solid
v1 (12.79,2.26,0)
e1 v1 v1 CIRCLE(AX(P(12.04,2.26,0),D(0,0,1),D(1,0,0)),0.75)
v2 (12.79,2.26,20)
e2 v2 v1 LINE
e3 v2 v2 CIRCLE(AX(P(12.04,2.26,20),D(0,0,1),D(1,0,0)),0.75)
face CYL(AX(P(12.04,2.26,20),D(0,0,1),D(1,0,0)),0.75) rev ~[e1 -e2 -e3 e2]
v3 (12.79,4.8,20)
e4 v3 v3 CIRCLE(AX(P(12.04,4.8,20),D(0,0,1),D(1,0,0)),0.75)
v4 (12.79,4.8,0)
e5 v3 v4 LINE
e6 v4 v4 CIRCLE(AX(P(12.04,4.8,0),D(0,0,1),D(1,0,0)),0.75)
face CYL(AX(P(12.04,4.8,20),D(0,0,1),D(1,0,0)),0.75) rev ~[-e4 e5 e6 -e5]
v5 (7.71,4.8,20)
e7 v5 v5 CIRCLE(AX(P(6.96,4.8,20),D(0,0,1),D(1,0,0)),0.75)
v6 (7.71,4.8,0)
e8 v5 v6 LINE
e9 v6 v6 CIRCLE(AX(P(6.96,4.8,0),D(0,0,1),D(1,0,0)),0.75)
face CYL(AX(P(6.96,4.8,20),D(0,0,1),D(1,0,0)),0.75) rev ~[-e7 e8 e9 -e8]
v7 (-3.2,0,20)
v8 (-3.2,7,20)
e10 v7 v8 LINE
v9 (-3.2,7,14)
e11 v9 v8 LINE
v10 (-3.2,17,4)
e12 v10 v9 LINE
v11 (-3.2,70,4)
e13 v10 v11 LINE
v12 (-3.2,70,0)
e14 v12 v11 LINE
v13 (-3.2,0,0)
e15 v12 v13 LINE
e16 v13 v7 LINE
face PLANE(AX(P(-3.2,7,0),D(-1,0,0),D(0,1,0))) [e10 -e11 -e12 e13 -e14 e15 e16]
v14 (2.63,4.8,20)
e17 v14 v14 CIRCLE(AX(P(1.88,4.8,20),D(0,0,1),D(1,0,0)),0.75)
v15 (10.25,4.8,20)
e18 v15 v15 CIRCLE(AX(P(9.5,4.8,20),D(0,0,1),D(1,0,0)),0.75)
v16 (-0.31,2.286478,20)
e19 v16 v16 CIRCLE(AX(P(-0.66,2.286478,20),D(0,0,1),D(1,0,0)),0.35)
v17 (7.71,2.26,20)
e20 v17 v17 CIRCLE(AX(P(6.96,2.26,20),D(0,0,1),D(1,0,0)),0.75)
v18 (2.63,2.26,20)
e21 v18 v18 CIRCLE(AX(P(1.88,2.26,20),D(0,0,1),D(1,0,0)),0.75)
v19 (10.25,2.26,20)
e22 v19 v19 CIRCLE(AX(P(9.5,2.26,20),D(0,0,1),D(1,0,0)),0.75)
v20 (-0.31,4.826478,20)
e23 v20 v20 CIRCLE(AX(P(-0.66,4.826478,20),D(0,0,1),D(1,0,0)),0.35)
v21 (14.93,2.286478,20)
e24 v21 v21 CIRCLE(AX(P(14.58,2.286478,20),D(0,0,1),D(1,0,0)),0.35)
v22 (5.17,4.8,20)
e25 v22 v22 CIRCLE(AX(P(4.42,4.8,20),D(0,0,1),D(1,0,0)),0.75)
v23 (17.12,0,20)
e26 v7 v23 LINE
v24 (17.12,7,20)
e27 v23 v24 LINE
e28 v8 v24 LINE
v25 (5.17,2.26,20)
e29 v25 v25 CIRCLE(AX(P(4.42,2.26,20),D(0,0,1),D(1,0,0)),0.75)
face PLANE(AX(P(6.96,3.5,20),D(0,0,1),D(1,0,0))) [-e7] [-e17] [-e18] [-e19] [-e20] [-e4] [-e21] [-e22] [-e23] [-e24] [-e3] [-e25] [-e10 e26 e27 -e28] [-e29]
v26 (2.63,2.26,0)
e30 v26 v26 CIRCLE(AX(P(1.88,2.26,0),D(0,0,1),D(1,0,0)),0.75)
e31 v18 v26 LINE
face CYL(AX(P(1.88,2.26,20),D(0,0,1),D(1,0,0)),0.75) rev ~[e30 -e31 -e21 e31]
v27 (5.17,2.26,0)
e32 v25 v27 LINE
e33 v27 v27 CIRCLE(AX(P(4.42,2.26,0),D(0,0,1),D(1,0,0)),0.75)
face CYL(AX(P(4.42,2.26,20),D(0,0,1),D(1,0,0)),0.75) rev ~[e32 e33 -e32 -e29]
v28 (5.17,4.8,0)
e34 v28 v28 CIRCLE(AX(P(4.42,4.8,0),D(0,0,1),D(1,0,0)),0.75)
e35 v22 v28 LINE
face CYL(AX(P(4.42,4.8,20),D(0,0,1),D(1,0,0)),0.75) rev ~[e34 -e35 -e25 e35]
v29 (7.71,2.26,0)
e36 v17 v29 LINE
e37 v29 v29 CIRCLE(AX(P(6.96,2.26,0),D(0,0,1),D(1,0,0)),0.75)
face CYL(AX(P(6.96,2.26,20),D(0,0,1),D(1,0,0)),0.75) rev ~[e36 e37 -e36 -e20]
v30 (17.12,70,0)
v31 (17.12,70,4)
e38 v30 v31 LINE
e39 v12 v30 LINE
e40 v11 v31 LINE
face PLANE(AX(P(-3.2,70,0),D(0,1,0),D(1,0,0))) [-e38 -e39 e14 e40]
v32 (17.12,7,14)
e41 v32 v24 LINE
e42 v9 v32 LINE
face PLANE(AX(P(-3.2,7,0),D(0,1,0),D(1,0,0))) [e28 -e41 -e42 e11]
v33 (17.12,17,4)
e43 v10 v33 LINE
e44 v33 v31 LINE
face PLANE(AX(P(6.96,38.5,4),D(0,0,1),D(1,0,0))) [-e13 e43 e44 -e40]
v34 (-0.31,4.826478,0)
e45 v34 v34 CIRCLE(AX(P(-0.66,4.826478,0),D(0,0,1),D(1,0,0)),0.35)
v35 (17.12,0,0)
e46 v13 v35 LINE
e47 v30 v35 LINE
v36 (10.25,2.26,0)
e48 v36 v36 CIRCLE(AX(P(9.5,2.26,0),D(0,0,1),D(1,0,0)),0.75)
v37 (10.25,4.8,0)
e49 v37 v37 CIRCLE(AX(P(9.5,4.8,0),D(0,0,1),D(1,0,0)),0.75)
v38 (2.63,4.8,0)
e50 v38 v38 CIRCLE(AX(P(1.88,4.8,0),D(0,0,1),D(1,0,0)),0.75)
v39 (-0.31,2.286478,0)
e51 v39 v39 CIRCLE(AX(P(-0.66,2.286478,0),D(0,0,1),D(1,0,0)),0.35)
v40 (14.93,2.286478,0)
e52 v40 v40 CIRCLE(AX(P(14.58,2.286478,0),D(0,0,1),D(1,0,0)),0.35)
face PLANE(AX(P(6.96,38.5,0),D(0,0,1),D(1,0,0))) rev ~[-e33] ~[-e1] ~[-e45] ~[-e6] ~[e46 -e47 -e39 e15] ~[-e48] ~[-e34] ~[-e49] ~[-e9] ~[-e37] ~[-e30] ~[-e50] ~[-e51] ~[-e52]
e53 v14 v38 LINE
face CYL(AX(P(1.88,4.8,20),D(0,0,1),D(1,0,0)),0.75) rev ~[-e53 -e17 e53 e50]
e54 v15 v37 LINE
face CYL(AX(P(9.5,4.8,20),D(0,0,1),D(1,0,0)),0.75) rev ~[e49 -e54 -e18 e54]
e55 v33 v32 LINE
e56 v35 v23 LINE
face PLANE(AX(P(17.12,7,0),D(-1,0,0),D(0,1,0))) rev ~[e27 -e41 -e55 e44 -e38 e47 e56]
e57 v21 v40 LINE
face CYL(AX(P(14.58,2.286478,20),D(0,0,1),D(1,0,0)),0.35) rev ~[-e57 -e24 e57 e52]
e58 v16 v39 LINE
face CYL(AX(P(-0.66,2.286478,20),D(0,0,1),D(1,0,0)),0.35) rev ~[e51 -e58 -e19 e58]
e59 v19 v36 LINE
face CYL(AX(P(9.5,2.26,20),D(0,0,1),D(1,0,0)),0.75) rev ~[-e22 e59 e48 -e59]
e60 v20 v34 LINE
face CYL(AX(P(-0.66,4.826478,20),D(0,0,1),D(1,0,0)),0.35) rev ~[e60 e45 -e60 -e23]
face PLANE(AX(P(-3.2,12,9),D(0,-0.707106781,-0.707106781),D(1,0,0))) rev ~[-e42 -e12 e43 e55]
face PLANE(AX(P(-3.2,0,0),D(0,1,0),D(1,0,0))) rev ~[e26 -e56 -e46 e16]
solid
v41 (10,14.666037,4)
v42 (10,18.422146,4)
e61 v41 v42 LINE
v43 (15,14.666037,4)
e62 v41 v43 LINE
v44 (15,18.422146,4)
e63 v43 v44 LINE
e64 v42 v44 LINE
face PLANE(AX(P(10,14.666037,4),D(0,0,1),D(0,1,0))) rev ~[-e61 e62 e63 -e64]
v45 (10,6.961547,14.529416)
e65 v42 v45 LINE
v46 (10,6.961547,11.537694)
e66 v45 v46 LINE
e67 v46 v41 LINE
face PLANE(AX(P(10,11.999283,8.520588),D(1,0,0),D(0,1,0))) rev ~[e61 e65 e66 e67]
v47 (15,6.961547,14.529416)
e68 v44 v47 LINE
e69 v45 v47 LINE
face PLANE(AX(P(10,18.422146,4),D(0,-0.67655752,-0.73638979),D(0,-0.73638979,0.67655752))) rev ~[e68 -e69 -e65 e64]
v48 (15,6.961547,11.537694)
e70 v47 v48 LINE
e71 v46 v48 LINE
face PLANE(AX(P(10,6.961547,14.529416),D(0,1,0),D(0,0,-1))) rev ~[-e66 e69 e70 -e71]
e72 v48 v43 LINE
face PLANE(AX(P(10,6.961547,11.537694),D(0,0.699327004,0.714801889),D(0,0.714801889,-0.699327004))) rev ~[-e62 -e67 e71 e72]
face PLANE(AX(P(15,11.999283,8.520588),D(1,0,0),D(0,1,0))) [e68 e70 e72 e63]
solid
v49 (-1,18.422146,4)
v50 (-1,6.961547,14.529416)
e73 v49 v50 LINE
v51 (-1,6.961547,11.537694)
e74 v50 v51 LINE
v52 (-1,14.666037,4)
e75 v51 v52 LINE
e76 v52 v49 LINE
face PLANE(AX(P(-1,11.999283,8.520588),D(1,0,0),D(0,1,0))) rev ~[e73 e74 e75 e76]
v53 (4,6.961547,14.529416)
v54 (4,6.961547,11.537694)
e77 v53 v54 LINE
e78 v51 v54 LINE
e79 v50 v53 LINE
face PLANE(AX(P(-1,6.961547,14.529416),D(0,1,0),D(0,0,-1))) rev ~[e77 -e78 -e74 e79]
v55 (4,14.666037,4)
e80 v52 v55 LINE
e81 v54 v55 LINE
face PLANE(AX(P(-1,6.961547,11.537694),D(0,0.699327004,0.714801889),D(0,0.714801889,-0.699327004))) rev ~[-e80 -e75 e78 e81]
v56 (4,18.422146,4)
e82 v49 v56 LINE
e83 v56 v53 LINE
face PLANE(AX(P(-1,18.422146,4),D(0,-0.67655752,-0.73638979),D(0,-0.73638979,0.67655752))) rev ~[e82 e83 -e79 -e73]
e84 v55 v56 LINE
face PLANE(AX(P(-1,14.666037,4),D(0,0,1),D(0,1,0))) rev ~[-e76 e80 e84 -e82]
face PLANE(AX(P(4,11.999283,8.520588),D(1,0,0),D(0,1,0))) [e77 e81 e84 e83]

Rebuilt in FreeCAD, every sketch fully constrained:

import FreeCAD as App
import Part
import Sketcher
Q = App.Units.Quantity


def edges_at(feature, points):
    """Names of the edges that pass closest to the given points."""
    edges = feature.Shape.Edges
    near = lambda p: min(range(len(edges)), key=lambda i: edges[i].distToShape(Part.Vertex(*p))[0])
    return sorted({f"Edge{near(p) + 1}" for p in points})


def add_polygon(sketch, points):
    """Adds a closed chain of lines whose ends are joined by coincident constraints."""
    first, n = sketch.GeometryCount, len(points)
    for a, b in zip(points, points[1:] + points[:1]):
        sketch.addGeometry(Part.LineSegment(App.Vector(*a, 0), App.Vector(*b, 0)), False)
    for i in range(n):
        sketch.addConstraint(Sketcher.Constraint("Coincident", first + i, 2, first + (i + 1) % n, 1))

doc = App.newDocument("Part")
body = doc.addObject("PartDesign::Body", "Body")

sketch1 = body.newObject("Sketcher::SketchObject", "Sketch")
sketch1.AttachmentSupport = (doc.getObject("YZ_Plane"), [""])
sketch1.MapMode = "FlatFace"
sketch1.AttachmentOffset = App.Placement(App.Vector(0, 0, -1), App.Rotation())
add_polygon(sketch1, [(7, 14.5), (7, 11.5), (14.7, 4), (18.4, 4)])
sketch1.addConstraint([
    Sketcher.Constraint("Vertical", 0),
    Sketcher.Constraint("Horizontal", 2),
    Sketcher.Constraint("DistanceY", -1, 1, 1, 2, Q("4 mm")),
    Sketcher.Constraint("DistanceX", 2, 1, 2, 2, Q("3.756109 mm")),
    Sketcher.Constraint("DistanceY", 0, 2, 0, 1, Q("2.991722 mm")),
    Sketcher.Constraint("DistanceX", 0, 2, 2, 2, Q("11.460599 mm")),
    Sketcher.Constraint("Distance", 1, Q("10.778497 mm")),
    Sketcher.Constraint("DistanceX", -1, 1, 0, 2, Q("6.961547 mm")),
])
pad1 = body.newObject("PartDesign::Pad", "Pad")
pad1.Profile = sketch1
pad1.Length = 5
body2 = doc.addObject("PartDesign::Body", "Body001")

sketch2 = body2.newObject("Sketcher::SketchObject", "Sketch001")
sketch2.AttachmentSupport = (doc.getObject("YZ_Plane001"), [""])
sketch2.MapMode = "FlatFace"
sketch2.AttachmentOffset = App.Placement(App.Vector(0, 0, 10), App.Rotation())
add_polygon(sketch2, [(7, 14.5), (7, 11.5), (14.7, 4), (18.4, 4)])
sketch2.addConstraint([
    Sketcher.Constraint("Vertical", 0),
    Sketcher.Constraint("Horizontal", 2),
    Sketcher.Constraint("DistanceY", -1, 1, 1, 2, Q("4 mm")),
    Sketcher.Constraint("DistanceX", 2, 1, 2, 2, Q("3.756109 mm")),
    Sketcher.Constraint("DistanceY", 0, 2, 0, 1, Q("2.991722 mm")),
    Sketcher.Constraint("DistanceX", 0, 2, 2, 2, Q("11.460599 mm")),
    Sketcher.Constraint("Distance", 1, Q("10.778497 mm")),
    Sketcher.Constraint("DistanceX", -1, 1, 0, 2, Q("6.961547 mm")),
])
pad2 = body2.newObject("PartDesign::Pad", "Pad001")
pad2.Profile = sketch2
pad2.Length = 5
body3 = doc.addObject("PartDesign::Body", "Body002")

sketch3 = body3.newObject("Sketcher::SketchObject", "Sketch002")
sketch3.AttachmentSupport = (doc.getObject("XY_Plane002"), [""])
sketch3.MapMode = "FlatFace"
add_polygon(sketch3, [(-3, 70), (-3, 7), (17, 7), (17, 70)])
sketch3.addConstraint([
    Sketcher.Constraint("Vertical", 0),
    Sketcher.Constraint("Horizontal", 1),
    Sketcher.Constraint("Vertical", 2),
    Sketcher.Constraint("Horizontal", 3),
    Sketcher.Constraint("DistanceY", 0, 2, 0, 1, Q("63 mm")),
    Sketcher.Constraint("DistanceY", -1, 1, 0, 2, Q("7 mm")),
    Sketcher.Constraint("DistanceX", 1, 1, 1, 2, Q("20.32 mm")),
    Sketcher.Constraint("DistanceX", 0, 2, -1, 1, Q("3.2 mm")),
])
pad3 = body3.newObject("PartDesign::Pad", "Pad002")
pad3.Profile = sketch3
pad3.Length = 4
body4 = doc.addObject("PartDesign::Body", "Body003")

sketch4 = body4.newObject("Sketcher::SketchObject", "Sketch003")
sketch4.AttachmentSupport = (doc.getObject("XY_Plane003"), [""])
sketch4.MapMode = "FlatFace"
add_polygon(sketch4, [(-3, 7), (-3, 0), (17, 0), (17, 7)])
sketch4.addConstraint([
    Sketcher.Constraint("Vertical", 0),
    Sketcher.Constraint("Horizontal", 1),
    Sketcher.Constraint("Vertical", 2),
    Sketcher.Constraint("Horizontal", 3),
    Sketcher.Constraint("PointOnObject", 0, 2, -1),
    Sketcher.Constraint("DistanceY", 0, 2, 0, 1, Q("7 mm")),
    Sketcher.Constraint("DistanceX", 1, 1, 1, 2, Q("20.32 mm")),
    Sketcher.Constraint("DistanceX", 0, 2, -1, 1, Q("3.2 mm")),
])
pad4 = body4.newObject("PartDesign::Pad", "Pad003")
pad4.Profile = sketch4
pad4.Length = 20

sketch5 = body4.newObject("Sketcher::SketchObject", "Sketch004")
sketch5.AttachmentSupport = (doc.getObject("XY_Plane003"), [""])
sketch5.MapMode = "FlatFace"
sketch5.AttachmentOffset = App.Placement(App.Vector(0, 0, 20), App.Rotation())
sketch5.addGeometry([
    Part.Circle(App.Vector(1.88, 2.26, 0), App.Vector(0, 0, 1), 0.75),
    Part.Circle(App.Vector(4.42, 2.26, 0), App.Vector(0, 0, 1), 0.75),
    Part.Circle(App.Vector(6.96, 2.26, 0), App.Vector(0, 0, 1), 0.75),
    Part.Circle(App.Vector(9.5, 2.26, 0), App.Vector(0, 0, 1), 0.75),
    Part.Circle(App.Vector(12.04, 2.26, 0), App.Vector(0, 0, 1), 0.75),
    Part.Circle(App.Vector(1.88, 4.8, 0), App.Vector(0, 0, 1), 0.75),
    Part.Circle(App.Vector(4.42, 4.8, 0), App.Vector(0, 0, 1), 0.75),
    Part.Circle(App.Vector(6.96, 4.8, 0), App.Vector(0, 0, 1), 0.75),
    Part.Circle(App.Vector(9.5, 4.8, 0), App.Vector(0, 0, 1), 0.75),
    Part.Circle(App.Vector(12.04, 4.8, 0), App.Vector(0, 0, 1), 0.75),
    Part.Circle(App.Vector(-0.66, 2.29, 0), App.Vector(0, 0, 1), 0.35),
    Part.Circle(App.Vector(-0.66, 4.83, 0), App.Vector(0, 0, 1), 0.35),
    Part.Circle(App.Vector(14.58, 2.29, 0), App.Vector(0, 0, 1), 0.35),
], False)
sketch5.addConstraint([
    Sketcher.Constraint("Equal", 0, 1),
    Sketcher.Constraint("Equal", 1, 2),
    Sketcher.Constraint("Equal", 2, 3),
    Sketcher.Constraint("Equal", 3, 4),
    Sketcher.Constraint("Equal", 4, 5),
    Sketcher.Constraint("Equal", 5, 6),
    Sketcher.Constraint("Equal", 6, 7),
    Sketcher.Constraint("Equal", 7, 8),
    Sketcher.Constraint("Equal", 8, 9),
    Sketcher.Constraint("Equal", 10, 11),
    Sketcher.Constraint("Equal", 11, 12),
    Sketcher.Constraint("Horizontal", 0, 3, 1, 3),
    Sketcher.Constraint("Horizontal", 1, 3, 2, 3),
    Sketcher.Constraint("Horizontal", 2, 3, 3, 3),
    Sketcher.Constraint("Horizontal", 3, 3, 4, 3),
    Sketcher.Constraint("Horizontal", 5, 3, 6, 3),
    Sketcher.Constraint("Horizontal", 6, 3, 7, 3),
    Sketcher.Constraint("Horizontal", 7, 3, 8, 3),
    Sketcher.Constraint("Horizontal", 8, 3, 9, 3),
    Sketcher.Constraint("Horizontal", 10, 3, 12, 3),
    Sketcher.Constraint("Vertical", 0, 3, 5, 3),
    Sketcher.Constraint("Vertical", 1, 3, 6, 3),
    Sketcher.Constraint("Vertical", 2, 3, 7, 3),
    Sketcher.Constraint("Vertical", 3, 3, 8, 3),
    Sketcher.Constraint("Vertical", 4, 3, 9, 3),
    Sketcher.Constraint("Vertical", 10, 3, 11, 3),
    Sketcher.Constraint("Diameter", 0, Q("1.5 mm")),
    Sketcher.Constraint("Diameter", 10, Q("0.7 mm")),
    Sketcher.Constraint("DistanceX", -1, 1, 3, 3, Q("9.5 mm")),
    Sketcher.Constraint("DistanceY", -1, 1, 5, 3, Q("4.8 mm")),
    Sketcher.Constraint("DistanceX", -1, 1, 0, 3, Q("1.88 mm")),
    Sketcher.Constraint("DistanceY", -1, 1, 0, 3, Q("2.26 mm")),
    Sketcher.Constraint("DistanceX", -1, 1, 1, 3, Q("4.42 mm")),
    Sketcher.Constraint("DistanceX", -1, 1, 2, 3, Q("6.96 mm")),
    Sketcher.Constraint("DistanceX", -1, 1, 4, 3, Q("12.04 mm")),
    Sketcher.Constraint("DistanceX", 10, 3, -1, 1, Q("0.66 mm")),
    Sketcher.Constraint("DistanceX", -1, 1, 12, 3, Q("14.58 mm")),
    Sketcher.Constraint("DistanceY", 10, 3, 11, 3, Q("2.54 mm")),
    Sketcher.Constraint("DistanceY", 0, 3, 10, 3, Q("0.026478 mm")),
])
pocket1 = body4.newObject("PartDesign::Pocket", "Pocket")
pocket1.Profile = sketch5
pocket1.Length = 20
doc.recompute()

boolean = body4.newObject("PartDesign::Boolean", "Boolean")
boolean.Type = "Fuse"
boolean.addObjects([body3])
doc.recompute()

chamfer = body4.newObject("PartDesign::Chamfer", "Chamfer")
chamfer.Base = (boolean, edges_at(boolean, [(6.96, 7, 4)]))
chamfer.Size = 10

doc.recompute()
